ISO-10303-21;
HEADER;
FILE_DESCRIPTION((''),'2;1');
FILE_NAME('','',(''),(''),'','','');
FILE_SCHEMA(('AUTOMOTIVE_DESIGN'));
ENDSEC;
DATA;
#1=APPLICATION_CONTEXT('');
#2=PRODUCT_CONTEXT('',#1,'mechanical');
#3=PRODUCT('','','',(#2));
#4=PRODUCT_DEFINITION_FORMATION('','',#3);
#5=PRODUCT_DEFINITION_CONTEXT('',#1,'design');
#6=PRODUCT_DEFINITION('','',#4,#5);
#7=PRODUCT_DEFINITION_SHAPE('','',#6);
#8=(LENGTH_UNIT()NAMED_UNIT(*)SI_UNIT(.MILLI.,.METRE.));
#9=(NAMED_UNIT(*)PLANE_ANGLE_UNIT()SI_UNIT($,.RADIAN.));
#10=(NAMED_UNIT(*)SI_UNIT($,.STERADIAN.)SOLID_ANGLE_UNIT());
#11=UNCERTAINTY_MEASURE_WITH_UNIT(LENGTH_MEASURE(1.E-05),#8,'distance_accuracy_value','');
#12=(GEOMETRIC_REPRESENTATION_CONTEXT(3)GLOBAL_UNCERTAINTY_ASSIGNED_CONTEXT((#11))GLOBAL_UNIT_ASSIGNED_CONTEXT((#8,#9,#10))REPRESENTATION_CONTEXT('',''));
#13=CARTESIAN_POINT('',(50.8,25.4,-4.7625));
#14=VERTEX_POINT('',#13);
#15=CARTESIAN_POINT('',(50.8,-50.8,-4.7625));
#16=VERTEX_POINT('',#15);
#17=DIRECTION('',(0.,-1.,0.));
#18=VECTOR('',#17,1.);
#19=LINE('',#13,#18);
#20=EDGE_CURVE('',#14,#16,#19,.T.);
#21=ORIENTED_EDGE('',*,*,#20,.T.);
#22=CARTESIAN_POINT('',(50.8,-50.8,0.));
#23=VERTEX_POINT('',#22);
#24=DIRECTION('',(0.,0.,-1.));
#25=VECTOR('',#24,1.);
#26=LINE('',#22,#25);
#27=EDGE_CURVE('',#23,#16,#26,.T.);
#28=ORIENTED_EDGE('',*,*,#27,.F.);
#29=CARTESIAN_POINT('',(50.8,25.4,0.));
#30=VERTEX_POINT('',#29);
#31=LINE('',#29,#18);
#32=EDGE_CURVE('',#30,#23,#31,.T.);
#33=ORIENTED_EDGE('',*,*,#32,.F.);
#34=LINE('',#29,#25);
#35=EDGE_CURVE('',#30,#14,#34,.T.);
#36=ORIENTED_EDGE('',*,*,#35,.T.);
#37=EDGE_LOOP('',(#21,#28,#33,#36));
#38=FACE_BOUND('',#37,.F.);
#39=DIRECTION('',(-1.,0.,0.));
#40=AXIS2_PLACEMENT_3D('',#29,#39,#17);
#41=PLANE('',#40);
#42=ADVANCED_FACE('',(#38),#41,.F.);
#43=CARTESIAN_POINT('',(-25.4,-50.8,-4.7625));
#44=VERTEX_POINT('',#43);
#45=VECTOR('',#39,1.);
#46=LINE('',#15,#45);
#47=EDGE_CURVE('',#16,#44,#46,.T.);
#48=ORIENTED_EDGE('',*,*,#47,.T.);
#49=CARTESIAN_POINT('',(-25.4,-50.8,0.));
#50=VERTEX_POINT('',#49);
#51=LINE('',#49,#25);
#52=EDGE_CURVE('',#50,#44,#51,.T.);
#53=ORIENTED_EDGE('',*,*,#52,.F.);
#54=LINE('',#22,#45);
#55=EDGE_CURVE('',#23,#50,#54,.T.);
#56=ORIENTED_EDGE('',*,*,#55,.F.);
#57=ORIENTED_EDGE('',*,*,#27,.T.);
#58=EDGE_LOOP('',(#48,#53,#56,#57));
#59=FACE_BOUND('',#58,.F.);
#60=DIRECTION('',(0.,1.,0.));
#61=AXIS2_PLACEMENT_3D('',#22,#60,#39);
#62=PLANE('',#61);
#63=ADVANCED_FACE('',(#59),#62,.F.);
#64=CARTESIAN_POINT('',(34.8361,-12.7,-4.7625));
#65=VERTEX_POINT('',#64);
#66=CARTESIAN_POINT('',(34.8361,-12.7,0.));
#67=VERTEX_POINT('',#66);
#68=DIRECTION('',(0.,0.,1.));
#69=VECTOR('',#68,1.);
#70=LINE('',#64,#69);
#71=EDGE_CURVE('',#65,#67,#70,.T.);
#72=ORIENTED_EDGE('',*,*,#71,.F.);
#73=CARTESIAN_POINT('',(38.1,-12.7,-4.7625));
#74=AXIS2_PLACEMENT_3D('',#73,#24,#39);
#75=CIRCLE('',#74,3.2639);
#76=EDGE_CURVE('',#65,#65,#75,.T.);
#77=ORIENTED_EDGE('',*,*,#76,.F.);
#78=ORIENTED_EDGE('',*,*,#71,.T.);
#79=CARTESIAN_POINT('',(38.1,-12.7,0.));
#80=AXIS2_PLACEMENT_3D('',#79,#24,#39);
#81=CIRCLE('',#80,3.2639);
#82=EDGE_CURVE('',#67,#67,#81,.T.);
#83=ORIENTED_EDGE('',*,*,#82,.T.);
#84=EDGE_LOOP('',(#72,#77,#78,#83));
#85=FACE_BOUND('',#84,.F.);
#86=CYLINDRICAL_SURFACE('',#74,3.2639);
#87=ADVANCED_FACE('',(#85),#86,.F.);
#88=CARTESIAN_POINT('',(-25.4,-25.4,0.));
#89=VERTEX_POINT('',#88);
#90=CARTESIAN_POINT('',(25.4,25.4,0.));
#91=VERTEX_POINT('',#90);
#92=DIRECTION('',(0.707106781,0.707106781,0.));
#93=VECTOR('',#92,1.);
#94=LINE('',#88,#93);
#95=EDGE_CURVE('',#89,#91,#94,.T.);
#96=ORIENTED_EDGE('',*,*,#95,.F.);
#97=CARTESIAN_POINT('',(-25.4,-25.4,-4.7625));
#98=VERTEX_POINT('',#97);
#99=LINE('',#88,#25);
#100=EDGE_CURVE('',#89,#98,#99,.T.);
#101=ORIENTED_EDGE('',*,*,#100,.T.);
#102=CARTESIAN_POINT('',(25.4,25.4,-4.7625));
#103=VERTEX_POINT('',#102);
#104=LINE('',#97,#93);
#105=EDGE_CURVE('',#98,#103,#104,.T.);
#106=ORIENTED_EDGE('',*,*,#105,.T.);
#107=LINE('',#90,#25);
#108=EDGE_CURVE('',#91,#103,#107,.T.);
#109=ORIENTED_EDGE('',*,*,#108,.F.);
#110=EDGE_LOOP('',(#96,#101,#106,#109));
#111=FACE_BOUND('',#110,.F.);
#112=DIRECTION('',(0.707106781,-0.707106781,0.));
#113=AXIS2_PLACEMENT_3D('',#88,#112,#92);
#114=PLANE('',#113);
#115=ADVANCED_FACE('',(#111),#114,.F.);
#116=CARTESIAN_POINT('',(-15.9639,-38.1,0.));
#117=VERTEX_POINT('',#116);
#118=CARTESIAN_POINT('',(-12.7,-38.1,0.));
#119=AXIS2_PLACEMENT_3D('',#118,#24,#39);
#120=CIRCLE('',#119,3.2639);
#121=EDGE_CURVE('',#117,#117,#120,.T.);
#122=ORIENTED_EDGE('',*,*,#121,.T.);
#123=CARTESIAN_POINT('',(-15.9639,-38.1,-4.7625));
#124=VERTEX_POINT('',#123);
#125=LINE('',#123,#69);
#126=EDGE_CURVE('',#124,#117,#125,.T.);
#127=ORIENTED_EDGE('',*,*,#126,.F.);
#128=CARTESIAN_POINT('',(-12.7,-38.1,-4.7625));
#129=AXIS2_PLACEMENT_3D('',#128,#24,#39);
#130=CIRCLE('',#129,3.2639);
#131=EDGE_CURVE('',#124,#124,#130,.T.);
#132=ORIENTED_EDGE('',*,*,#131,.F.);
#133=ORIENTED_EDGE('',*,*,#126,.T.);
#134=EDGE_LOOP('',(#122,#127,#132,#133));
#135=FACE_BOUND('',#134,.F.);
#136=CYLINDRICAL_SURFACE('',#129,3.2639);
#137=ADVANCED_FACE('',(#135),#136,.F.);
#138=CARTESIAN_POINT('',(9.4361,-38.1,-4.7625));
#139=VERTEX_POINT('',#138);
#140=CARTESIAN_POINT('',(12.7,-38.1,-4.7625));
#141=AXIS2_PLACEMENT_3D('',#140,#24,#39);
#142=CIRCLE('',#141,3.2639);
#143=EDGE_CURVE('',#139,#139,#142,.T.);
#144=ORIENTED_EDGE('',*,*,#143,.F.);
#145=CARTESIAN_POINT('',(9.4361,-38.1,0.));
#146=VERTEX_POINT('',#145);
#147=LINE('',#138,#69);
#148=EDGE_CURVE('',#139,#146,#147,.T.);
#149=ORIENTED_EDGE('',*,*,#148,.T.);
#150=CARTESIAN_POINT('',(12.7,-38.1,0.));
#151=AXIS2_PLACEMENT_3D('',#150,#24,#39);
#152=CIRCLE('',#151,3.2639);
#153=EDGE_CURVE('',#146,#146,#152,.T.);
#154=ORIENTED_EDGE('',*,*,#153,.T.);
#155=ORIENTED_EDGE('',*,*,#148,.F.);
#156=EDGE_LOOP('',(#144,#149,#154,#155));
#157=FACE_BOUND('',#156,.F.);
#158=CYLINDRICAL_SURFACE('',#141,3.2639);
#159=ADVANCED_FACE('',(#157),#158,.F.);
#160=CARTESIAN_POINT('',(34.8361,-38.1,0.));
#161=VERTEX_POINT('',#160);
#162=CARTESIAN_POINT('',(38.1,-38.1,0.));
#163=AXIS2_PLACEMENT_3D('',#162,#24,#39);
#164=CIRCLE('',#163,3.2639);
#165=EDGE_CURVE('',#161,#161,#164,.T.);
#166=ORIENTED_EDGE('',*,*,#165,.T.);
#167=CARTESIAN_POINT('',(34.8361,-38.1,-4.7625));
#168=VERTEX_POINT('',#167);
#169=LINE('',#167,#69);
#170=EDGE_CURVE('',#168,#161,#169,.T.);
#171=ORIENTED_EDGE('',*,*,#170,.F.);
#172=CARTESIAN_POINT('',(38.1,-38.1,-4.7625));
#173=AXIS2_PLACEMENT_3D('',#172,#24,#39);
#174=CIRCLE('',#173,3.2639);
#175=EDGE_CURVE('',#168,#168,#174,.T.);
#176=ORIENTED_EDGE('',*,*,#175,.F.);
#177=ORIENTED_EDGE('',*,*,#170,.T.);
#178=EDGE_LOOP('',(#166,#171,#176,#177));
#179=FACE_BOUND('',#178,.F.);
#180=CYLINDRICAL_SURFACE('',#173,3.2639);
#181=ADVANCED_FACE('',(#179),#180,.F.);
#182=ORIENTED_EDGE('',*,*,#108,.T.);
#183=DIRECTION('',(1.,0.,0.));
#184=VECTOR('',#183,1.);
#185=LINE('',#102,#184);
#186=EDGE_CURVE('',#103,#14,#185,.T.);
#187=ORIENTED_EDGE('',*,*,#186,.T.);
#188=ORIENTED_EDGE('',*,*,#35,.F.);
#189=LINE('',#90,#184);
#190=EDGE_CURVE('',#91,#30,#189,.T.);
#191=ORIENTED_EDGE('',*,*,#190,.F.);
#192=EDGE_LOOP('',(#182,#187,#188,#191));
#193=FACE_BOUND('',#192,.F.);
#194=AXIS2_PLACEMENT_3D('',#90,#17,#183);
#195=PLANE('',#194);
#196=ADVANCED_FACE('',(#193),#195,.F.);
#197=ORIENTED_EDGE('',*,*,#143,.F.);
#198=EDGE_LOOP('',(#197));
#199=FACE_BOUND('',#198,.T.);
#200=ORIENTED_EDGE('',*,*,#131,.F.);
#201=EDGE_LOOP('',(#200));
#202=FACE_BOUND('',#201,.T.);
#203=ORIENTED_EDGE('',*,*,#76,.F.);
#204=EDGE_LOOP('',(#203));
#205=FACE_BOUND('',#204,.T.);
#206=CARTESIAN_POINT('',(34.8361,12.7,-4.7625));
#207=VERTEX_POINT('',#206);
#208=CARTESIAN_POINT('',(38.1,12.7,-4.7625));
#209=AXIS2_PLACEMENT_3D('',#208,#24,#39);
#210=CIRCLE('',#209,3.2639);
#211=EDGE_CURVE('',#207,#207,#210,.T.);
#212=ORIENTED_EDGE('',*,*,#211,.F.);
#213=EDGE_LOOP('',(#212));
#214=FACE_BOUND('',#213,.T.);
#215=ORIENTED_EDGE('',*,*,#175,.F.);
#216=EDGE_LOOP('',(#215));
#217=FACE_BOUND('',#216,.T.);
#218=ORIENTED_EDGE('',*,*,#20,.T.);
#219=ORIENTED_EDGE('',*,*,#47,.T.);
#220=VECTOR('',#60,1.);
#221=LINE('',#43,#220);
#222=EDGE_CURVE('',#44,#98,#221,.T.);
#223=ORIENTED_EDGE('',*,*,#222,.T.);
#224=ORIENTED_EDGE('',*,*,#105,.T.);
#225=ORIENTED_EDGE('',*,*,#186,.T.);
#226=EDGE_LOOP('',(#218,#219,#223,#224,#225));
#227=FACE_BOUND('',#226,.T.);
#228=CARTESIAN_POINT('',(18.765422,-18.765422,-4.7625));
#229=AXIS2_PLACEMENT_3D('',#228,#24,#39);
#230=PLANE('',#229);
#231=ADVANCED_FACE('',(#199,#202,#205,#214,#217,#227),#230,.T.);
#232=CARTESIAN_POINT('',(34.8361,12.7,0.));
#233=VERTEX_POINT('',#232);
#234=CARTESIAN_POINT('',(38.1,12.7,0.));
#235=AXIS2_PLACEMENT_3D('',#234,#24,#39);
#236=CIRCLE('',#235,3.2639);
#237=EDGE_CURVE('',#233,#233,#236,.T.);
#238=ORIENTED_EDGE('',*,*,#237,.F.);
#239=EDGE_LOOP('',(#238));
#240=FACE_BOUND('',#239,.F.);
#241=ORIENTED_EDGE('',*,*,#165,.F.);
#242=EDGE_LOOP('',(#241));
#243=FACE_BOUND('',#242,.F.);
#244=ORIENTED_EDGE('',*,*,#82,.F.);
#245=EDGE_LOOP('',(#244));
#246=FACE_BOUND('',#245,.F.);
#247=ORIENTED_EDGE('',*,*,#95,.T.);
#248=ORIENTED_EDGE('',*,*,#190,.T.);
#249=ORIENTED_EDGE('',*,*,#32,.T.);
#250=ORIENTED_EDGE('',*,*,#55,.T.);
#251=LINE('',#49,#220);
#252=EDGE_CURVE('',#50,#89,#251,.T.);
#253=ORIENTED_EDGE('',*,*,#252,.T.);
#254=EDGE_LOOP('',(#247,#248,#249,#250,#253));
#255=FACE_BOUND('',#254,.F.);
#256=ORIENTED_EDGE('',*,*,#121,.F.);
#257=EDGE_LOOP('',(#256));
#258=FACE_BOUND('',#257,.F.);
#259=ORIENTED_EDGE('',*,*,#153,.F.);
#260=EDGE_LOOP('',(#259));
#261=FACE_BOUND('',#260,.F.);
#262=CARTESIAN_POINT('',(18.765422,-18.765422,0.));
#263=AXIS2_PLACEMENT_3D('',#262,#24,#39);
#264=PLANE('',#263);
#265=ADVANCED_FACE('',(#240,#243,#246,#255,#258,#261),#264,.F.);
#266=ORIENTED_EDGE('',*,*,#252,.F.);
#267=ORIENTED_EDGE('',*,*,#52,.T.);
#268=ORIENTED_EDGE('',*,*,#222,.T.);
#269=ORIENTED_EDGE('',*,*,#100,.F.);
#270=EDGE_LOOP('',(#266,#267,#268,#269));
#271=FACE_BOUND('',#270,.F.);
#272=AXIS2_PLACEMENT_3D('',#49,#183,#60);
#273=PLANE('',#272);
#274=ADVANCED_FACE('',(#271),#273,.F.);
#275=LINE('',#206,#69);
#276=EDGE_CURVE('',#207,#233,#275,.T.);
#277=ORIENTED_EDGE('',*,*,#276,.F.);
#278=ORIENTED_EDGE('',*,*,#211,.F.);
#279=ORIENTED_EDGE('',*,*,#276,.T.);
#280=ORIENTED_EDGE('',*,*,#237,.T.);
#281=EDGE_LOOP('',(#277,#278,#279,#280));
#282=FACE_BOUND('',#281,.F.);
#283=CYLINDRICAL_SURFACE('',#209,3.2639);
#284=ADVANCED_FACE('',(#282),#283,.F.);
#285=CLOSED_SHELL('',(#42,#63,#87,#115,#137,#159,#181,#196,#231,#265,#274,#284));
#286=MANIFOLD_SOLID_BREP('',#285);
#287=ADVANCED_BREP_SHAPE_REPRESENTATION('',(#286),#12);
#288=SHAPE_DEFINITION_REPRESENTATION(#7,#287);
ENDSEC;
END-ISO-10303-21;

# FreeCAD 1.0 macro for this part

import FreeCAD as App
import Part
import Sketcher
from FreeCAD import Vector
Q = App.Units.Quantity


def add_polygon(sketch, points):
    """Adds a closed chain of lines whose ends are joined by coincident constraints."""
    first, n = sketch.GeometryCount, len(points)
    for a, b in zip(points, points[1:] + points[:1]):
        sketch.addGeometry(Part.LineSegment(App.Vector(*a, 0), App.Vector(*b, 0)), False)
    for i in range(n):
        sketch.addConstraint(Sketcher.Constraint("Coincident", first + i, 2, first + (i + 1) % n, 1))

doc = App.newDocument("Part")
body = doc.addObject("PartDesign::Body", "Body")

sketch1 = body.newObject("Sketcher::SketchObject", "Sketch")
sketch1.AttachmentSupport = (doc.getObject("XY_Plane"), [""])
sketch1.MapMode = "FlatFace"
add_polygon(sketch1, [(50.8, 25.4), (25.4, 25.4), (-25.4, -25.4), (-25.4, -50.8), (50.8, -50.8)])
sketch1.addConstraint(Sketcher.Constraint("Horizontal", 0))
sketch1.addConstraint(Sketcher.Constraint("Vertical", 2))
sketch1.addConstraint(Sketcher.Constraint("Horizontal", 3))
sketch1.addConstraint(Sketcher.Constraint("Vertical", 4))
sketch1.addConstraint(Sketcher.Constraint("Symmetric", 0, 2, 1, 2, -1, 1))
sketch1.addConstraint(Sketcher.Constraint("Equal", 0, 2))
sketch1.addConstraint(Sketcher.Constraint("Equal", 3, 4))
sketch1.addConstraint(Sketcher.Constraint("DistanceX", 0, 2, 0, 1, Q("1 in")))
sketch1.addConstraint(Sketcher.Constraint("DistanceX", 3, 1, 3, 2, Q("3 in")))
pad1 = body.newObject("PartDesign::Pad", "Pad")
pad1.Profile = sketch1
pad1.Length = Q("0.1875 in")
pad1.Reversed = True

sketch2 = body.newObject("Sketcher::SketchObject", "Sketch001")
sketch2.AttachmentSupport = (doc.getObject("XY_Plane"), [""])
sketch2.MapMode = "FlatFace"
sketch2.AttachmentOffset = App.Placement(Vector(0, 0, -0.1875 * 25.4), App.Rotation())
sketch2.addGeometry(Part.Circle(Vector(38.1, -38.1, 0), Vector(0, 0, 1), 3.2639), False)
sketch2.addGeometry(Part.Circle(Vector(12.7, -38.1, 0), Vector(0, 0, 1), 3.2639), False)
sketch2.addGeometry(Part.Circle(Vector(-12.7, -38.1, 0), Vector(0, 0, 1), 3.2639), False)
sketch2.addGeometry(Part.Circle(Vector(38.1, -12.7, 0), Vector(0, 0, 1), 3.2639), False)
sketch2.addGeometry(Part.Circle(Vector(38.1, 12.7, 0), Vector(0, 0, 1), 3.2639), False)
sketch2.addConstraint(Sketcher.Constraint("Equal", 0, 1))
sketch2.addConstraint(Sketcher.Constraint("Equal", 1, 2))
sketch2.addConstraint(Sketcher.Constraint("Equal", 2, 3))
sketch2.addConstraint(Sketcher.Constraint("Equal", 3, 4))
sketch2.addConstraint(Sketcher.Constraint("Symmetric", 1, 3, 2, 3, -2))
sketch2.addConstraint(Sketcher.Constraint("Symmetric", 3, 3, 4, 3, -1))
sketch2.addConstraint(Sketcher.Constraint("Horizontal", 0, 3, 1, 3))
sketch2.addConstraint(Sketcher.Constraint("Vertical", 0, 3, 3, 3))
sketch2.addConstraint(Sketcher.Constraint("Diameter", 0, Q("0.257 in")))
sketch2.addConstraint(Sketcher.Constraint("DistanceX", 1, 3, 0, 3, Q("1 in")))
sketch2.addConstraint(Sketcher.Constraint("DistanceX", 2, 3, 1, 3, Q("1 in")))
sketch2.addConstraint(Sketcher.Constraint("DistanceY", 0, 3, 3, 3, Q("1 in")))
sketch2.addConstraint(Sketcher.Constraint("DistanceY", 3, 3, 4, 3, Q("1 in")))
pocket1 = body.newObject("PartDesign::Pocket", "Pocket")
pocket1.Profile = sketch2
pocket1.Type = "ThroughAll"
pocket1.Reversed = True

doc.recompute()
